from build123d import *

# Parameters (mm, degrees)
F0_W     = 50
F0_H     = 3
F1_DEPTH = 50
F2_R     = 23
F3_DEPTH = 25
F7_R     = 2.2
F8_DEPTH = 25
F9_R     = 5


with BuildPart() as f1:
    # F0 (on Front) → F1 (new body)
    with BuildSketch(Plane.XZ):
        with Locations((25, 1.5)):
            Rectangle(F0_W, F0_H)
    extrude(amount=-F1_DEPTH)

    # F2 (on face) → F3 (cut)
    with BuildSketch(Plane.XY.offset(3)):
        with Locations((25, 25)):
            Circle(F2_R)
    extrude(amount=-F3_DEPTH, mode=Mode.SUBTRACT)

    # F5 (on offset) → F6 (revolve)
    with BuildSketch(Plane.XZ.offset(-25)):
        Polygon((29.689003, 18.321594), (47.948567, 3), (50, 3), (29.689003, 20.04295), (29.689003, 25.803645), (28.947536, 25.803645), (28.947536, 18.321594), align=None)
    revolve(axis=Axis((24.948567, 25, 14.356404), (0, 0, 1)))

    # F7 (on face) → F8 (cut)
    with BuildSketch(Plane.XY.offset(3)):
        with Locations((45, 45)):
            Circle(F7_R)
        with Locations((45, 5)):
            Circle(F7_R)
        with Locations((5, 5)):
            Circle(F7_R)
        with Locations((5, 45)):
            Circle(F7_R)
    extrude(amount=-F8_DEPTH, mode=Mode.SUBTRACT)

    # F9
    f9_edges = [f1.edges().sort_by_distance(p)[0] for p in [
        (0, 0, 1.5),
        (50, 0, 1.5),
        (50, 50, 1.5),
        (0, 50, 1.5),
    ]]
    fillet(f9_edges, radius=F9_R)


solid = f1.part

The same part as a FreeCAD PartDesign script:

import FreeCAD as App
import Part
import Sketcher
from FreeCAD import Vector
Q = App.Units.Quantity


def edges_at(feature, points):
    """Names of the edges that pass closest to the given points."""
    edges = feature.Shape.Edges
    near = lambda p: min(range(len(edges)), key=lambda i: edges[i].distToShape(Part.Vertex(*p))[0])
    return sorted({f"Edge{near(p) + 1}" for p in points})

doc = App.newDocument("Part")
body = doc.addObject("PartDesign::Body", "Body")

sketch1 = body.newObject("Sketcher::SketchObject", "Sketch")
sketch1.AttachmentSupport = (doc.getObject("XZ_Plane"), [""])
sketch1.MapMode = "FlatFace"
sketch1.addGeometry([
    Part.LineSegment(Vector(0, 3, 0), Vector(0, 0, 0)),
    Part.LineSegment(Vector(0, 0, 0), Vector(50, 0, 0)),
    Part.LineSegment(Vector(50, 0, 0), Vector(50, 3, 0)),
    Part.LineSegment(Vector(50, 3, 0), Vector(0, 3, 0)),
], False)
sketch1.addConstraint([
    Sketcher.Constraint("Coincident", 0, 2, 1, 1),
    Sketcher.Constraint("Coincident", 1, 2, 2, 1),
    Sketcher.Constraint("Coincident", 2, 2, 3, 1),
    Sketcher.Constraint("Coincident", 3, 2, 0, 1),
    Sketcher.Constraint("Vertical", 0),
    Sketcher.Constraint("Horizontal", 1),
    Sketcher.Constraint("Vertical", 2),
    Sketcher.Constraint("Horizontal", 3),
    Sketcher.Constraint("Coincident", 0, 2, -1, 1),
    Sketcher.Constraint("DistanceX", 1, 1, 1, 2, 50.0),
    Sketcher.Constraint("DistanceY", 0, 2, 0, 1, 3.0),
])
pad1 = body.newObject("PartDesign::Pad", "Pad")
pad1.Profile = sketch1
pad1.Length = 50
pad1.Reversed = True

sketch2 = body.newObject("Sketcher::SketchObject", "Sketch001")
sketch2.AttachmentSupport = (doc.getObject("XY_Plane"), [""])
sketch2.MapMode = "FlatFace"
sketch2.AttachmentOffset = App.Placement(Vector(0, 0, 3), App.Rotation())
sketch2.addGeometry(Part.Circle(Vector(25, 25, 0), Vector(0, 0, 1), 23), False)
sketch2.addConstraint([
    Sketcher.Constraint("Diameter", 0, 46.0),
    Sketcher.Constraint("DistanceX", -1, 1, 0, 3, 25.0),
    Sketcher.Constraint("DistanceY", -1, 1, 0, 3, 25.0),
])
pocket1 = body.newObject("PartDesign::Pocket", "Pocket")
pocket1.Profile = sketch2
pocket1.Length = 25

sketch3 = body.newObject("Sketcher::SketchObject", "Sketch002")
sketch3.AttachmentSupport = (doc.getObject("XZ_Plane"), [""])
sketch3.MapMode = "FlatFace"
sketch3.AttachmentOffset = App.Placement(Vector(0, 0, -25), App.Rotation())
sketch3.addGeometry([
    Part.LineSegment(Vector(29.689003, 18.321594, 0), Vector(47.948567, 3, 0)),
    Part.LineSegment(Vector(47.948567, 3, 0), Vector(50, 3, 0)),
    Part.LineSegment(Vector(50, 3, 0), Vector(29.689003, 20.04295, 0)),
    Part.LineSegment(Vector(29.689003, 20.04295, 0), Vector(29.689003, 25.803645, 0)),
    Part.LineSegment(Vector(29.689003, 25.803645, 0), Vector(28.947536, 25.803645, 0)),
    Part.LineSegment(Vector(28.947536, 25.803645, 0), Vector(28.947536, 18.321594, 0)),
    Part.LineSegment(Vector(28.947536, 18.321594, 0), Vector(29.689003, 18.321594, 0)),
], False)
sketch3.addGeometry(Part.LineSegment(Vector(24.948567, 3, 0), Vector(24.948567, 25.803645, 0)), True)
sketch3.addConstraint([
    Sketcher.Constraint("Coincident", 0, 2, 1, 1),
    Sketcher.Constraint("Coincident", 1, 2, 2, 1),
    Sketcher.Constraint("Coincident", 2, 2, 3, 1),
    Sketcher.Constraint("Coincident", 3, 2, 4, 1),
    Sketcher.Constraint("Coincident", 4, 2, 5, 1),
    Sketcher.Constraint("Coincident", 5, 2, 6, 1),
    Sketcher.Constraint("Coincident", 6, 2, 0, 1),
    Sketcher.Constraint("Horizontal", 1),
    Sketcher.Constraint("Vertical", 3),
    Sketcher.Constraint("Horizontal", 4),
    Sketcher.Constraint("Vertical", 5),
    Sketcher.Constraint("Horizontal", 6),
    Sketcher.Constraint("Vertical", 7),
    Sketcher.Constraint("Parallel", 0, 2),
    Sketcher.Constraint("Horizontal", 1, 2, 7, 1),
    Sketcher.Constraint("Horizontal", 4, 2, 7, 2),
    Sketcher.Constraint("Vertical", 3, 2, 6, 2),
    Sketcher.Constraint("Angle", 0, Q("-40.000001 deg")),
    Sketcher.Constraint("DistanceY", -1, 1, 0, 2, 3.0),
    Sketcher.Constraint("DistanceX", -1, 1, 1, 2, 50.0),
    Sketcher.Constraint("DistanceX", 7, 1, 0, 2, 23.0),
    Sketcher.Constraint("DistanceY", 5, 2, 5, 1, 7.482051),
    Sketcher.Constraint("Distance", 0, 23.836168),
    Sketcher.Constraint("DistanceX", 1, 1, 1, 2, 2.051433),
    Sketcher.Constraint("DistanceX", 4, 2, 4, 1, 0.741467),
])
revolution = body.newObject("PartDesign::Revolution", "Revolution")
revolution.Profile = sketch3
revolution.ReferenceAxis = (sketch3, ["Axis0"])
revolution.Angle = 360

sketch4 = body.newObject("Sketcher::SketchObject", "Sketch003")
sketch4.AttachmentSupport = (doc.getObject("XY_Plane"), [""])
sketch4.MapMode = "FlatFace"
sketch4.AttachmentOffset = App.Placement(Vector(0, 0, 3), App.Rotation())
sketch4.addGeometry([
    Part.Circle(Vector(45, 45, 0), Vector(0, 0, 1), 2.2),
    Part.Circle(Vector(45, 5, 0), Vector(0, 0, 1), 2.2),
    Part.Circle(Vector(5, 5, 0), Vector(0, 0, 1), 2.2),
    Part.Circle(Vector(5, 45, 0), Vector(0, 0, 1), 2.2),
], False)
sketch4.addConstraint([
    Sketcher.Constraint("Equal", 0, 1),
    Sketcher.Constraint("Equal", 1, 2),
    Sketcher.Constraint("Equal", 2, 3),
    Sketcher.Constraint("Horizontal", 1, 3, 2, 3),
    Sketcher.Constraint("Horizontal", 0, 3, 3, 3),
    Sketcher.Constraint("Vertical", 0, 3, 1, 3),
    Sketcher.Constraint("Vertical", 2, 3, 3, 3),
    Sketcher.Constraint("Diameter", 0, 4.4),
    Sketcher.Constraint("DistanceX", -1, 1, 0, 3, 45.0),
    Sketcher.Constraint("DistanceY", -1, 1, 0, 3, 45.0),
    Sketcher.Constraint("DistanceY", -1, 1, 1, 3, 5.0),
    Sketcher.Constraint("DistanceX", -1, 1, 2, 3, 5.0),
])
pocket2 = body.newObject("PartDesign::Pocket", "Pocket001")
pocket2.Profile = sketch4
pocket2.Length = 25
doc.recompute()

fillet = body.newObject("PartDesign::Fillet", "Fillet")
fillet.Base = (pocket2, edges_at(pocket2, [
    (0, 0, 1.5),
    (50, 0, 1.5),
    (50, 50, 1.5),
    (0, 50, 1.5),
]))
fillet.Radius = 5

doc.recompute()
